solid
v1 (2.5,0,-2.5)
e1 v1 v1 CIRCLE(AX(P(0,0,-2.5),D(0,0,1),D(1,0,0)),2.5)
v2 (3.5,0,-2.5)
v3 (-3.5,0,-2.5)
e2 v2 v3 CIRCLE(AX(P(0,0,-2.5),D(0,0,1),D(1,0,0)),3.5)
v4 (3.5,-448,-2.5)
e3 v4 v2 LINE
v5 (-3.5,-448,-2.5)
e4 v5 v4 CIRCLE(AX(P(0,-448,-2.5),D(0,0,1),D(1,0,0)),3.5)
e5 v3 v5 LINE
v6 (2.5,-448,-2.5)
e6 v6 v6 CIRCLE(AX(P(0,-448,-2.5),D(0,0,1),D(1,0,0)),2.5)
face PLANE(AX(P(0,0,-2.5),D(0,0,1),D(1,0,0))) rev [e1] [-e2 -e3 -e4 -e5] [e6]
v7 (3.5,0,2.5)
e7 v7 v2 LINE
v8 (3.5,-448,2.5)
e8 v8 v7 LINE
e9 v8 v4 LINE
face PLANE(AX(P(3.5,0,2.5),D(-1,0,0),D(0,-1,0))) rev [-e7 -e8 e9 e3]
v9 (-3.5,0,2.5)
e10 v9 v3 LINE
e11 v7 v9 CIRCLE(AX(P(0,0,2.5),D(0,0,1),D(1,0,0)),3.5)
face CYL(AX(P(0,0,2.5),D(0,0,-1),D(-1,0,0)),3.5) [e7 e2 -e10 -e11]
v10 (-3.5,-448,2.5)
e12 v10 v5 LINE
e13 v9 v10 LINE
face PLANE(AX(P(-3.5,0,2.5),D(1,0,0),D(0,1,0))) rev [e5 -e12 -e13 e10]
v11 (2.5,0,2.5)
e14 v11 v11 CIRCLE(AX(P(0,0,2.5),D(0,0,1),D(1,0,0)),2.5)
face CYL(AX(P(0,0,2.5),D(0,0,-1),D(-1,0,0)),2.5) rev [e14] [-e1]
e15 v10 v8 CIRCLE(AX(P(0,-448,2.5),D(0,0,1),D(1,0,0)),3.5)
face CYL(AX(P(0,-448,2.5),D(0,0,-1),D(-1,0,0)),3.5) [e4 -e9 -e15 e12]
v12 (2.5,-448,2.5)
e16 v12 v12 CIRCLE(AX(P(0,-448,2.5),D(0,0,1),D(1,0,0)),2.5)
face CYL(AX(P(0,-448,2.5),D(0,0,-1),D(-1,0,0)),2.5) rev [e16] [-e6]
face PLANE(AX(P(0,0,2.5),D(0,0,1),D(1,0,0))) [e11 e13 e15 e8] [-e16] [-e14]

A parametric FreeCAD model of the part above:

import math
import FreeCAD as App
import Part
import Sketcher

V = App.Vector
Q = App.Units.Quantity

doc = App.newDocument("Part")
body = doc.addObject("PartDesign::Body", "Body")

sketch1 = doc.addObject("Sketcher::SketchObject", "Sketch")
body.addObject(sketch1)
sketch1.AttachmentSupport = (doc.XY_Plane, [""])
sketch1.MapMode = "FlatFace"
sketch1.addGeometry([
    Part.LineSegment(V(3.5, -448, 0), V(3.5, 0, 0)),
    Part.ArcOfCircle(Part.Circle(V(0, 0, 0), V(0, 0, 1), 3.5), math.radians(0), math.radians(180)),
    Part.LineSegment(V(-3.5, 0, 0), V(-3.5, -448, 0)),
    Part.ArcOfCircle(Part.Circle(V(0, -448, 0), V(0, 0, 1), 3.5), math.radians(180), math.radians(360)),
    Part.Circle(V(0, -448, 0), V(0, 0, 1), 2.5),
    Part.Circle(V(0, 0, 0), V(0, 0, 1), 2.5),
], False)
sketch1.addConstraint([
    Sketcher.Constraint("Tangent", 0, 2, 1, 1),
    Sketcher.Constraint("Tangent", 1, 2, 2, 1),
    Sketcher.Constraint("Tangent", 2, 2, 3, 1),
    Sketcher.Constraint("Tangent", 3, 2, 0, 1),
    Sketcher.Constraint("Vertical", 0),
    Sketcher.Constraint("Vertical", 2),
    Sketcher.Constraint("Coincident", 1, 3, -1, 1),
    Sketcher.Constraint("Coincident", 5, 3, -1, 1),
    Sketcher.Constraint("Coincident", 4, 3, 3, 3),
    Sketcher.Constraint("Equal", 4, 5),
    Sketcher.Constraint("Diameter", 4, Q("5 mm")),
    Sketcher.Constraint("Radius", 1, Q("3.5 mm")),
    Sketcher.Constraint("DistanceY", 0, 1, 0, 2, Q("448 mm")),
])
pad1 = doc.addObject("PartDesign::Pad", "Pad")
body.addObject(pad1)
pad1.Profile = sketch1
pad1.Length = 5
pad1.Midplane = True

doc.recompute()
